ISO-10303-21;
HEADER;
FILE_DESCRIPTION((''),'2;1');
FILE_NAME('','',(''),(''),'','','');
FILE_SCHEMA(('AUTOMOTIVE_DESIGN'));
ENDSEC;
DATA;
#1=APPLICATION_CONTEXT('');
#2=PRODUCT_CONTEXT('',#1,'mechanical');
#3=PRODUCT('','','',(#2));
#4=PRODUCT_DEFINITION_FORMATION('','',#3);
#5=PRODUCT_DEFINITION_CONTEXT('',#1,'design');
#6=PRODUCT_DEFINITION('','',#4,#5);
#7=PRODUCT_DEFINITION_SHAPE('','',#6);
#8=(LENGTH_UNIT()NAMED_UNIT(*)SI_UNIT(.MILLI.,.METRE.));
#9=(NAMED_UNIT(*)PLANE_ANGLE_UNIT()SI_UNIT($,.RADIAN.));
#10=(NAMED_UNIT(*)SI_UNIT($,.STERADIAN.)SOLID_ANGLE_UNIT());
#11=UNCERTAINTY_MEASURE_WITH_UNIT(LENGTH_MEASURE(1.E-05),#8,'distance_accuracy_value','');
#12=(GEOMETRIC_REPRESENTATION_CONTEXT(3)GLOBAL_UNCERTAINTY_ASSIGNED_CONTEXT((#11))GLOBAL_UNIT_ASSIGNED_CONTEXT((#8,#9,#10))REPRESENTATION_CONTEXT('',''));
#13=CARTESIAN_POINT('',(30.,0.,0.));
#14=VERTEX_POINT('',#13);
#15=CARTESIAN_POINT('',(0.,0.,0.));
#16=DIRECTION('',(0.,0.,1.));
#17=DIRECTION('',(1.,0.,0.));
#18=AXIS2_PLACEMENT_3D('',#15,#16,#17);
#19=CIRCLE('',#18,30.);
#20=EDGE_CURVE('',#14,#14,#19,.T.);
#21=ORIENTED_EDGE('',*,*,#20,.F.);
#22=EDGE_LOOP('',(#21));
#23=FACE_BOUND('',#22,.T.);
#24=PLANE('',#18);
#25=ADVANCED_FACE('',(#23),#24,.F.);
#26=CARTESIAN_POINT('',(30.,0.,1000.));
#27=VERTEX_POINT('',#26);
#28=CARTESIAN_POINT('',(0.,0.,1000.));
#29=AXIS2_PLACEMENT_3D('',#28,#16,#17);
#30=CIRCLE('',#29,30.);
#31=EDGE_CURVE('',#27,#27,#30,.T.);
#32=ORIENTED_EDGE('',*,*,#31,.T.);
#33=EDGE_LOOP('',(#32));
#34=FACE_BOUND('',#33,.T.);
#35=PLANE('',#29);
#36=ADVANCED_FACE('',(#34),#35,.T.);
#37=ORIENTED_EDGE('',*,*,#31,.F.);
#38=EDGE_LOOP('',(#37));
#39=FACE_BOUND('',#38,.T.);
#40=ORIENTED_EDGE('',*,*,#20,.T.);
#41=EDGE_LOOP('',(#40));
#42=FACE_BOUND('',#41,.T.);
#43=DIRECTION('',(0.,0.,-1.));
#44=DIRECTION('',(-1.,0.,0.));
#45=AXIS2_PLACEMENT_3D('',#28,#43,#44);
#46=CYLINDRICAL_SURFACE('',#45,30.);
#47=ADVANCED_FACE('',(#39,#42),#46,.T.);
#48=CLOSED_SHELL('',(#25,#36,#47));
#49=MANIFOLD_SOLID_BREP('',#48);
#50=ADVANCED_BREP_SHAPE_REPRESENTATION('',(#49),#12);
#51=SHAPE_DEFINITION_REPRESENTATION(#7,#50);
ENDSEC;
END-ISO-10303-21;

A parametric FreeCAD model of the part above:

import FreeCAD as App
import Part
import Sketcher

V = App.Vector

doc = App.newDocument("Part")
body = doc.addObject("PartDesign::Body", "Body")

sketch1 = body.newObject("Sketcher::SketchObject", "Sketch")
sketch1.AttachmentSupport = (doc.getObject("XY_Plane"), [""])
sketch1.MapMode = "FlatFace"
sketch1.addGeometry(Part.Circle(V(0, 0, 0), V(0, 0, 1), 30), False)
sketch1.addConstraint([
    Sketcher.Constraint("Coincident", 0, 3, -1, 1),
    Sketcher.Constraint("Diameter", 0, 60.0),
])
pad1 = body.newObject("PartDesign::Pad", "Pad")
pad1.Profile = sketch1
pad1.Length = 1000

doc.recompute()
